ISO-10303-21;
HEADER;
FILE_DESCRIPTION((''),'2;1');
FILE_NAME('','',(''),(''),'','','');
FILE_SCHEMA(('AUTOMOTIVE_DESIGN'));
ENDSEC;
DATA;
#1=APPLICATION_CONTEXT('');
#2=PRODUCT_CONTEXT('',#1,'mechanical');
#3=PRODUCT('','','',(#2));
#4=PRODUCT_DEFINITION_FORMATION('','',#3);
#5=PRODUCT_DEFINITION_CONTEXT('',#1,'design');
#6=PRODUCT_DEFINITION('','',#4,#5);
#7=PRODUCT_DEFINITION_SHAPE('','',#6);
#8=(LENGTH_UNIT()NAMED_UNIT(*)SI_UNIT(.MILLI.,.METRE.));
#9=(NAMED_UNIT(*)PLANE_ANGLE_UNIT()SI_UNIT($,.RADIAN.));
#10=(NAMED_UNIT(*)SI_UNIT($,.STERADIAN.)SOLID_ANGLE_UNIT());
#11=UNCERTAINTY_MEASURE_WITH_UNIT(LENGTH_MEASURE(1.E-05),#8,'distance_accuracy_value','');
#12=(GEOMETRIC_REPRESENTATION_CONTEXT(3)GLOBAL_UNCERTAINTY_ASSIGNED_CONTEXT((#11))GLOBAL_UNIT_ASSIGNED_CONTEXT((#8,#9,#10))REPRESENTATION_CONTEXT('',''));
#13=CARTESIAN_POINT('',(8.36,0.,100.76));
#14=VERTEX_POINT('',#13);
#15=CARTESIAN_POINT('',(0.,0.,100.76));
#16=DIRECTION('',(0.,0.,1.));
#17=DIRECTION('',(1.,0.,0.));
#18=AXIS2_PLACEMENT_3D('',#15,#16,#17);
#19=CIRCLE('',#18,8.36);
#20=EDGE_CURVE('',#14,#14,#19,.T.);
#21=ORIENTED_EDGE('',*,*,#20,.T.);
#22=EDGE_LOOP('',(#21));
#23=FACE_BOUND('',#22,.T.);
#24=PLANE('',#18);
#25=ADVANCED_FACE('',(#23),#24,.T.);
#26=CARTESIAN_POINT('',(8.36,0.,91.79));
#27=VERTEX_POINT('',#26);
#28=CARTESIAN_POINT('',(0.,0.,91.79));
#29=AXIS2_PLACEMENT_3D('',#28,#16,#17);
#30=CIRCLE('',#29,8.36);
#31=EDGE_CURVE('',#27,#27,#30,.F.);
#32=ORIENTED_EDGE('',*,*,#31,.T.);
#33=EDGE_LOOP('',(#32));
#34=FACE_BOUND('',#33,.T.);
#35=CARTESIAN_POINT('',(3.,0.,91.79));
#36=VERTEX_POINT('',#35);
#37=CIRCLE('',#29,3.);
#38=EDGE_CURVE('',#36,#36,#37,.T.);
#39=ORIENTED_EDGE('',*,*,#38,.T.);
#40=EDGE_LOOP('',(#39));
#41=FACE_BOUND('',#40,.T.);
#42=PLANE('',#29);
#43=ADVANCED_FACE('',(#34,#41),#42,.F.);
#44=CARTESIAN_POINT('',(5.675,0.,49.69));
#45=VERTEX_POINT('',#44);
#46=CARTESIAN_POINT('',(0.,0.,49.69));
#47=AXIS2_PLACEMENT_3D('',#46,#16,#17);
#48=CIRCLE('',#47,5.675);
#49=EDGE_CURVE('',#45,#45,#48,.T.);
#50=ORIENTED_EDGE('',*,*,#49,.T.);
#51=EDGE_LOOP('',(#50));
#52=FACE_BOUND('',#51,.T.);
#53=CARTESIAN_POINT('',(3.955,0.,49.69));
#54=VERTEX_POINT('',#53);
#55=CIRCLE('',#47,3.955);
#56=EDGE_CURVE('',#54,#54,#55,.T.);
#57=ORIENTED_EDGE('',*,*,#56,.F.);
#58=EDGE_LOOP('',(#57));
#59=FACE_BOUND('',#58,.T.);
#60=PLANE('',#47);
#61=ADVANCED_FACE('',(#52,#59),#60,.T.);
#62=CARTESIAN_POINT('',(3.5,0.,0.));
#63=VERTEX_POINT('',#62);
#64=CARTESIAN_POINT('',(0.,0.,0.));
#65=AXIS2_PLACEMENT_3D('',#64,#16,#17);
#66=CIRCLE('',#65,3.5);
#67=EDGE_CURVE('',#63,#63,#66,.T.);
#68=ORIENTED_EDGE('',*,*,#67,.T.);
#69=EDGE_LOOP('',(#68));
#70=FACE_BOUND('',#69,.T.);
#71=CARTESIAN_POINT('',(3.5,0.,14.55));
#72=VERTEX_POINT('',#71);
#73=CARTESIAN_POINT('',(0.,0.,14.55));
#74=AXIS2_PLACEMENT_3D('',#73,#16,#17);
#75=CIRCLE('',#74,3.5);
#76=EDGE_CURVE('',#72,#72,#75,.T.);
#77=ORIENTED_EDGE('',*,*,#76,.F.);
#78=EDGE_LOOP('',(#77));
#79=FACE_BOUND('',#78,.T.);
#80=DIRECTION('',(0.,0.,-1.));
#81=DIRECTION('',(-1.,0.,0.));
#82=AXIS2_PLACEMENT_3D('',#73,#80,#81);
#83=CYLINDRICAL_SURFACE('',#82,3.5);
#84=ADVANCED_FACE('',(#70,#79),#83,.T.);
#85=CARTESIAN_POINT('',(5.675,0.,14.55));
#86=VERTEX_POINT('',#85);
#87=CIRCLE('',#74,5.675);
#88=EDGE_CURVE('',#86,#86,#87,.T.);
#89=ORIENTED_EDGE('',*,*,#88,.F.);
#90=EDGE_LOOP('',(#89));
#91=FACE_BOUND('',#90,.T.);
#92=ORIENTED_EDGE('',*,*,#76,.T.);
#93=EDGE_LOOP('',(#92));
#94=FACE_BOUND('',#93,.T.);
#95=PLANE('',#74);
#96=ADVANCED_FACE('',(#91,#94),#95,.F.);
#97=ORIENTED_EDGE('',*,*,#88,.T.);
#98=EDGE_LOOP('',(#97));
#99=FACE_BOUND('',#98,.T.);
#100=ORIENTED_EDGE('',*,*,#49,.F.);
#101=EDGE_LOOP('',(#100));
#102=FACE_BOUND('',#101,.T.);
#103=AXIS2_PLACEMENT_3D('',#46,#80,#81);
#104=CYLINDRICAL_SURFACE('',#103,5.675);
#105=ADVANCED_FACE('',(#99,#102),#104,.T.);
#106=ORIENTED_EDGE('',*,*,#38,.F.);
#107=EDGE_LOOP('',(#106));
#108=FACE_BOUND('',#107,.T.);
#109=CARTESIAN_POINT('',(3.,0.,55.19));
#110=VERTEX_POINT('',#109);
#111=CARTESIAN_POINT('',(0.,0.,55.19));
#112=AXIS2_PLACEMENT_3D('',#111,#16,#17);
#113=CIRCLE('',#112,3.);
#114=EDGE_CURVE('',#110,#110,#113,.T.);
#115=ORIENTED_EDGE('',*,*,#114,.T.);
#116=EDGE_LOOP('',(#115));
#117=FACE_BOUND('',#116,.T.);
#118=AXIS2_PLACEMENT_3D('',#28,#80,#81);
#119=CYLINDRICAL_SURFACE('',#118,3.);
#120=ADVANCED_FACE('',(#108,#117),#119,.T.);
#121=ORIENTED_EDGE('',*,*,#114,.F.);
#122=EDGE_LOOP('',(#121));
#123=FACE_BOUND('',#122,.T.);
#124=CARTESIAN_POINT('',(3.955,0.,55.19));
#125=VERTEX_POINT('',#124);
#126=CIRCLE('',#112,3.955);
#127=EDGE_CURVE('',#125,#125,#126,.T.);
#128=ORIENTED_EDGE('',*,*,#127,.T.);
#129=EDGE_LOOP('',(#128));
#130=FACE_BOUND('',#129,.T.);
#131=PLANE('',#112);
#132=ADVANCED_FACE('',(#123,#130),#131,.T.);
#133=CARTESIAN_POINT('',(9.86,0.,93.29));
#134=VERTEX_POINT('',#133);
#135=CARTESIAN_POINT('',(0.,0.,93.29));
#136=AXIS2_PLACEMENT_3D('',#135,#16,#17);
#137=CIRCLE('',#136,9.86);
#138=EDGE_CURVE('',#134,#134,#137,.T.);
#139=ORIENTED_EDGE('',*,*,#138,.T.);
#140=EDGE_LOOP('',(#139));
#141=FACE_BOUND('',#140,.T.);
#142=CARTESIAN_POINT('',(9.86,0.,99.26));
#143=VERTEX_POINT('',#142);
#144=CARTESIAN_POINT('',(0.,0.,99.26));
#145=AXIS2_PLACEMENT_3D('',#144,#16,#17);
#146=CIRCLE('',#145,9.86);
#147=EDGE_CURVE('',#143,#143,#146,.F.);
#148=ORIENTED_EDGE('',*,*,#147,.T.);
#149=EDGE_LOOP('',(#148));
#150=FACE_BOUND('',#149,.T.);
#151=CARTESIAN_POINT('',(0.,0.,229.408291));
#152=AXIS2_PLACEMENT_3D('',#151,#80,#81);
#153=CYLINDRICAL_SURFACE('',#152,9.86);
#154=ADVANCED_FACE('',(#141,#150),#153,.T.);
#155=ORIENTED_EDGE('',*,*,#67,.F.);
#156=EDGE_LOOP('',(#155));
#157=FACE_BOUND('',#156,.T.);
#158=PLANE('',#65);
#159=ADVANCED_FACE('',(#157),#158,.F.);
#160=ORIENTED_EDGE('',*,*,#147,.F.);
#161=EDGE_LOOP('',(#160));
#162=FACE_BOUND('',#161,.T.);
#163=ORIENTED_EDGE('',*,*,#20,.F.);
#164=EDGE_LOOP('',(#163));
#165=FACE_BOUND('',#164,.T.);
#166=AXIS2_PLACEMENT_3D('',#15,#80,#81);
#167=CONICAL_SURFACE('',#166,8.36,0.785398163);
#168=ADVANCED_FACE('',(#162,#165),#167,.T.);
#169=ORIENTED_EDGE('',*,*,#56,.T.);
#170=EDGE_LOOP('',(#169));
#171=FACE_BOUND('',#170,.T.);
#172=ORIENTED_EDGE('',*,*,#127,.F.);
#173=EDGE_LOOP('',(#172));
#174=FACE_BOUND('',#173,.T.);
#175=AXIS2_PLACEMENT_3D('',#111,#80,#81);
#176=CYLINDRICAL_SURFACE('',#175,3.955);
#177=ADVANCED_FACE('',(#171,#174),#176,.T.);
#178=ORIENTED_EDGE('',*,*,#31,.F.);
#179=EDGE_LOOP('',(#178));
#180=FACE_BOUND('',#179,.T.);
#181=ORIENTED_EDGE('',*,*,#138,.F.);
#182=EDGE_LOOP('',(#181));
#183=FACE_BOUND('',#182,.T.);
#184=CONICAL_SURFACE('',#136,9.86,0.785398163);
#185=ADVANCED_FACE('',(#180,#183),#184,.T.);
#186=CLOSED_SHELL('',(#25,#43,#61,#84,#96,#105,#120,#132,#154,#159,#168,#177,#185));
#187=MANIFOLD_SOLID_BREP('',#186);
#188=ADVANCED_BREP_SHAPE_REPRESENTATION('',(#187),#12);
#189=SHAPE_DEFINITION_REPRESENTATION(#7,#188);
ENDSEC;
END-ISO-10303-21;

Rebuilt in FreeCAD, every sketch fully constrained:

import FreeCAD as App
import Part
import Sketcher
from FreeCAD import Vector
Q = App.Units.Quantity


def edges_at(feature, points):
    """Names of the edges that pass closest to the given points."""
    edges = feature.Shape.Edges
    near = lambda p: min(range(len(edges)), key=lambda i: edges[i].distToShape(Part.Vertex(*p))[0])
    return sorted({f"Edge{near(p) + 1}" for p in points})

doc = App.newDocument("Part")
body = doc.addObject("PartDesign::Body", "Body")

# Sketch on XY plane
sketch1 = doc.addObject("Sketcher::SketchObject", "Sketch")
body.addObject(sketch1)
sketch1.AttachmentSupport = (doc.XY_Plane, [""])
sketch1.MapMode = "FlatFace"
sketch1.addGeometry(Part.Circle(Vector(0, 0, 0), Vector(0, 0, 1), 3.5), False)
sketch1.addConstraint([
    Sketcher.Constraint("Coincident", 0, 3, -1, 1),
    Sketcher.Constraint("Diameter", 0, Q("7 mm")),
])
pad1 = doc.addObject("PartDesign::Pad", "Pad")
body.addObject(pad1)
pad1.Profile = sketch1
pad1.Length = 14.55

# Sketch on XY plane
sketch2 = doc.addObject("Sketcher::SketchObject", "Sketch001")
body.addObject(sketch2)
sketch2.AttachmentSupport = (doc.XY_Plane, [""])
sketch2.MapMode = "FlatFace"
sketch2.AttachmentOffset = App.Placement(Vector(0, 0, 14.55), App.Rotation())
sketch2.addGeometry(Part.Circle(Vector(0, 0, 0), Vector(0, 0, 1), 5.675), False)
sketch2.addConstraint([
    Sketcher.Constraint("Coincident", 0, 3, -1, 1),
    Sketcher.Constraint("Diameter", 0, Q("11.35 mm")),
])
pad2 = doc.addObject("PartDesign::Pad", "Pad001")
body.addObject(pad2)
pad2.Profile = sketch2
pad2.Length = 35.14

# Sketch on XY plane
sketch3 = doc.addObject("Sketcher::SketchObject", "Sketch002")
body.addObject(sketch3)
sketch3.AttachmentSupport = (doc.XY_Plane, [""])
sketch3.MapMode = "FlatFace"
sketch3.AttachmentOffset = App.Placement(Vector(0, 0, 49.69), App.Rotation())
sketch3.addGeometry(Part.Circle(Vector(0, 0, 0), Vector(0, 0, 1), 3.955), False)
sketch3.addConstraint([
    Sketcher.Constraint("Coincident", 0, 3, -1, 1),
    Sketcher.Constraint("Diameter", 0, Q("7.91 mm")),
])
pad3 = doc.addObject("PartDesign::Pad", "Pad002")
body.addObject(pad3)
pad3.Profile = sketch3
pad3.Length = 5.5

# Sketch on XY plane
sketch4 = doc.addObject("Sketcher::SketchObject", "Sketch003")
body.addObject(sketch4)
sketch4.AttachmentSupport = (doc.XY_Plane, [""])
sketch4.MapMode = "FlatFace"
sketch4.AttachmentOffset = App.Placement(Vector(0, 0, 55.19), App.Rotation())
sketch4.addGeometry(Part.Circle(Vector(0, 0, 0), Vector(0, 0, 1), 3), False)
sketch4.addConstraint([
    Sketcher.Constraint("Coincident", 0, 3, -1, 1),
    Sketcher.Constraint("Diameter", 0, Q("6 mm")),
])
pad4 = doc.addObject("PartDesign::Pad", "Pad003")
body.addObject(pad4)
pad4.Profile = sketch4
pad4.Length = 36.6

# Sketch on XY plane
sketch5 = doc.addObject("Sketcher::SketchObject", "Sketch004")
body.addObject(sketch5)
sketch5.AttachmentSupport = (doc.XY_Plane, [""])
sketch5.MapMode = "FlatFace"
sketch5.AttachmentOffset = App.Placement(Vector(0, 0, 91.79), App.Rotation())
sketch5.addGeometry(Part.Circle(Vector(0, 0, 0), Vector(0, 0, 1), 9.86), False)
sketch5.addConstraint([
    Sketcher.Constraint("Coincident", 0, 3, -1, 1),
    Sketcher.Constraint("Diameter", 0, Q("19.72 mm")),
])
pad5 = doc.addObject("PartDesign::Pad", "Pad004")
body.addObject(pad5)
pad5.Profile = sketch5
pad5.Length = 8.97
doc.recompute()

chamfer = doc.addObject("PartDesign::Chamfer", "Chamfer")
body.addObject(chamfer)
chamfer.Base = (pad5, edges_at(pad5, [(-9.86, 0, 91.79), (-9.86, 0, 100.76)]))
chamfer.Size = 1.5

doc.recompute()
